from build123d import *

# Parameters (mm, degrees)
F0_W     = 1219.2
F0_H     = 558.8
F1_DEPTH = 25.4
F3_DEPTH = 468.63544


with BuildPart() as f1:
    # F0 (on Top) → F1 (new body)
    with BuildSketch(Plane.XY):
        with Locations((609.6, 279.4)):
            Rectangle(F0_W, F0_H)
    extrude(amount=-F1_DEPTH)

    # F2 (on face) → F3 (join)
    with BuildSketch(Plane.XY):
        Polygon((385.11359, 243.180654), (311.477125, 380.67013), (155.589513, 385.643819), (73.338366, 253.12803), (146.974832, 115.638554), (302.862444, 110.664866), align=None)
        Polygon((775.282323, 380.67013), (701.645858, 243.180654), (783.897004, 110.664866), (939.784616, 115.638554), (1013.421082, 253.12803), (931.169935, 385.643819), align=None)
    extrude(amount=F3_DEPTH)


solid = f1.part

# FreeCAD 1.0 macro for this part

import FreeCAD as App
import Part
import Sketcher
Q = App.Units.Quantity


def add_polygon(sketch, points):
    """Adds a closed chain of lines whose ends are joined by coincident constraints."""
    first, n = sketch.GeometryCount, len(points)
    for a, b in zip(points, points[1:] + points[:1]):
        sketch.addGeometry(Part.LineSegment(App.Vector(*a, 0), App.Vector(*b, 0)), False)
    for i in range(n):
        sketch.addConstraint(Sketcher.Constraint("Coincident", first + i, 2, first + (i + 1) % n, 1))

doc = App.newDocument("Part")
params = doc.addObject("Spreadsheet::Sheet", "Params")
for row, (alias, value) in enumerate([
    ("sketch1_width", "48 in"),
    ("sketch1_height", "22 in"),
    ("pad1_length", "1 in"),
    ("pad2_length", "468.63544 mm"),
], start=1):
    params.set(f"A{row}", alias)
    params.set(f"B{row}", "=" + value)
    params.setAlias(f"B{row}", alias)

body = doc.addObject("PartDesign::Body", "Body")

# Sketch on XY plane
sketch1 = doc.addObject("Sketcher::SketchObject", "Sketch")
body.addObject(sketch1)
sketch1.AttachmentSupport = (doc.XY_Plane, [""])
sketch1.MapMode = "FlatFace"
add_polygon(sketch1, [(0, 559), (0, 0), (1219, 0), (1219, 559)])  # lines 0-3
sketch1.addConstraint([
    Sketcher.Constraint("Vertical", 0),
    Sketcher.Constraint("Horizontal", 1),
    Sketcher.Constraint("Vertical", 2),
    Sketcher.Constraint("Horizontal", 3),
    Sketcher.Constraint("Coincident", 0, 2, -1, 1),
    Sketcher.Constraint("DistanceX", 1, 1, 1, 2, Q("48 in")),
    Sketcher.Constraint("DistanceY", 0, 2, 0, 1, Q("22 in")),
])
sketch1.setExpression("Constraints[9]", "Params.sketch1_width")
sketch1.setExpression("Constraints[10]", "Params.sketch1_height")
pad1 = doc.addObject("PartDesign::Pad", "Pad")
body.addObject(pad1)
pad1.Profile = sketch1
pad1.setExpression("Length", "Params.pad1_length")
pad1.Reversed = True

# Sketch on XY plane
sketch2 = doc.addObject("Sketcher::SketchObject", "Sketch001")
body.addObject(sketch2)
sketch2.AttachmentSupport = (doc.XY_Plane, [""])
sketch2.MapMode = "FlatFace"
add_polygon(sketch2, [(385, 243), (311, 381), (156, 386), (73, 253), (147, 116), (303, 111)])  # lines 0-5
add_polygon(sketch2, [(775, 381), (702, 243), (784, 111), (940, 116), (1013, 253), (931, 386)])  # lines 6-11
sketch2.addConstraint([
    Sketcher.Constraint("Parallel", 0, 3),
    Sketcher.Constraint("Parallel", 1, 4),
    Sketcher.Constraint("Parallel", 2, 5),
    Sketcher.Constraint("Parallel", 6, 9),
    Sketcher.Constraint("Parallel", 7, 10),
    Sketcher.Constraint("Parallel", 8, 11),
    Sketcher.Constraint("Horizontal", 5, 2, 6, 2),
    Sketcher.Constraint("Horizontal", 4, 2, 7, 2),
    Sketcher.Constraint("Horizontal", 3, 2, 8, 2),
    Sketcher.Constraint("Horizontal", 2, 2, 9, 2),
    Sketcher.Constraint("Horizontal", 1, 2, 10, 2),
    Sketcher.Constraint("Equal", 0, 1),
    Sketcher.Constraint("Equal", 1, 2),
    Sketcher.Constraint("Equal", 2, 3),
    Sketcher.Constraint("Equal", 5, 6),
    Sketcher.Constraint("Equal", 6, 7),
    Sketcher.Constraint("Equal", 7, 8),
    Sketcher.Constraint("DistanceY", 2, 2, 0, 2, 127.5421),
    Sketcher.Constraint("DistanceY", -1, 1, 0, 2, 380.67013),
    Sketcher.Constraint("DistanceY", -1, 1, 1, 2, 385.643819),
    Sketcher.Constraint("DistanceX", -1, 1, 3, 2, 146.974832),
    Sketcher.Constraint("DistanceX", -1, 1, 5, 2, 385.11359),
    Sketcher.Constraint("DistanceX", -1, 1, 6, 2, 701.645858),
    Sketcher.Constraint("DistanceX", -1, 1, 9, 2, 1013.421082),
])
pad2 = doc.addObject("PartDesign::Pad", "Pad001")
body.addObject(pad2)
pad2.Profile = sketch2
pad2.setExpression("Length", "Params.pad2_length")

doc.recompute()
